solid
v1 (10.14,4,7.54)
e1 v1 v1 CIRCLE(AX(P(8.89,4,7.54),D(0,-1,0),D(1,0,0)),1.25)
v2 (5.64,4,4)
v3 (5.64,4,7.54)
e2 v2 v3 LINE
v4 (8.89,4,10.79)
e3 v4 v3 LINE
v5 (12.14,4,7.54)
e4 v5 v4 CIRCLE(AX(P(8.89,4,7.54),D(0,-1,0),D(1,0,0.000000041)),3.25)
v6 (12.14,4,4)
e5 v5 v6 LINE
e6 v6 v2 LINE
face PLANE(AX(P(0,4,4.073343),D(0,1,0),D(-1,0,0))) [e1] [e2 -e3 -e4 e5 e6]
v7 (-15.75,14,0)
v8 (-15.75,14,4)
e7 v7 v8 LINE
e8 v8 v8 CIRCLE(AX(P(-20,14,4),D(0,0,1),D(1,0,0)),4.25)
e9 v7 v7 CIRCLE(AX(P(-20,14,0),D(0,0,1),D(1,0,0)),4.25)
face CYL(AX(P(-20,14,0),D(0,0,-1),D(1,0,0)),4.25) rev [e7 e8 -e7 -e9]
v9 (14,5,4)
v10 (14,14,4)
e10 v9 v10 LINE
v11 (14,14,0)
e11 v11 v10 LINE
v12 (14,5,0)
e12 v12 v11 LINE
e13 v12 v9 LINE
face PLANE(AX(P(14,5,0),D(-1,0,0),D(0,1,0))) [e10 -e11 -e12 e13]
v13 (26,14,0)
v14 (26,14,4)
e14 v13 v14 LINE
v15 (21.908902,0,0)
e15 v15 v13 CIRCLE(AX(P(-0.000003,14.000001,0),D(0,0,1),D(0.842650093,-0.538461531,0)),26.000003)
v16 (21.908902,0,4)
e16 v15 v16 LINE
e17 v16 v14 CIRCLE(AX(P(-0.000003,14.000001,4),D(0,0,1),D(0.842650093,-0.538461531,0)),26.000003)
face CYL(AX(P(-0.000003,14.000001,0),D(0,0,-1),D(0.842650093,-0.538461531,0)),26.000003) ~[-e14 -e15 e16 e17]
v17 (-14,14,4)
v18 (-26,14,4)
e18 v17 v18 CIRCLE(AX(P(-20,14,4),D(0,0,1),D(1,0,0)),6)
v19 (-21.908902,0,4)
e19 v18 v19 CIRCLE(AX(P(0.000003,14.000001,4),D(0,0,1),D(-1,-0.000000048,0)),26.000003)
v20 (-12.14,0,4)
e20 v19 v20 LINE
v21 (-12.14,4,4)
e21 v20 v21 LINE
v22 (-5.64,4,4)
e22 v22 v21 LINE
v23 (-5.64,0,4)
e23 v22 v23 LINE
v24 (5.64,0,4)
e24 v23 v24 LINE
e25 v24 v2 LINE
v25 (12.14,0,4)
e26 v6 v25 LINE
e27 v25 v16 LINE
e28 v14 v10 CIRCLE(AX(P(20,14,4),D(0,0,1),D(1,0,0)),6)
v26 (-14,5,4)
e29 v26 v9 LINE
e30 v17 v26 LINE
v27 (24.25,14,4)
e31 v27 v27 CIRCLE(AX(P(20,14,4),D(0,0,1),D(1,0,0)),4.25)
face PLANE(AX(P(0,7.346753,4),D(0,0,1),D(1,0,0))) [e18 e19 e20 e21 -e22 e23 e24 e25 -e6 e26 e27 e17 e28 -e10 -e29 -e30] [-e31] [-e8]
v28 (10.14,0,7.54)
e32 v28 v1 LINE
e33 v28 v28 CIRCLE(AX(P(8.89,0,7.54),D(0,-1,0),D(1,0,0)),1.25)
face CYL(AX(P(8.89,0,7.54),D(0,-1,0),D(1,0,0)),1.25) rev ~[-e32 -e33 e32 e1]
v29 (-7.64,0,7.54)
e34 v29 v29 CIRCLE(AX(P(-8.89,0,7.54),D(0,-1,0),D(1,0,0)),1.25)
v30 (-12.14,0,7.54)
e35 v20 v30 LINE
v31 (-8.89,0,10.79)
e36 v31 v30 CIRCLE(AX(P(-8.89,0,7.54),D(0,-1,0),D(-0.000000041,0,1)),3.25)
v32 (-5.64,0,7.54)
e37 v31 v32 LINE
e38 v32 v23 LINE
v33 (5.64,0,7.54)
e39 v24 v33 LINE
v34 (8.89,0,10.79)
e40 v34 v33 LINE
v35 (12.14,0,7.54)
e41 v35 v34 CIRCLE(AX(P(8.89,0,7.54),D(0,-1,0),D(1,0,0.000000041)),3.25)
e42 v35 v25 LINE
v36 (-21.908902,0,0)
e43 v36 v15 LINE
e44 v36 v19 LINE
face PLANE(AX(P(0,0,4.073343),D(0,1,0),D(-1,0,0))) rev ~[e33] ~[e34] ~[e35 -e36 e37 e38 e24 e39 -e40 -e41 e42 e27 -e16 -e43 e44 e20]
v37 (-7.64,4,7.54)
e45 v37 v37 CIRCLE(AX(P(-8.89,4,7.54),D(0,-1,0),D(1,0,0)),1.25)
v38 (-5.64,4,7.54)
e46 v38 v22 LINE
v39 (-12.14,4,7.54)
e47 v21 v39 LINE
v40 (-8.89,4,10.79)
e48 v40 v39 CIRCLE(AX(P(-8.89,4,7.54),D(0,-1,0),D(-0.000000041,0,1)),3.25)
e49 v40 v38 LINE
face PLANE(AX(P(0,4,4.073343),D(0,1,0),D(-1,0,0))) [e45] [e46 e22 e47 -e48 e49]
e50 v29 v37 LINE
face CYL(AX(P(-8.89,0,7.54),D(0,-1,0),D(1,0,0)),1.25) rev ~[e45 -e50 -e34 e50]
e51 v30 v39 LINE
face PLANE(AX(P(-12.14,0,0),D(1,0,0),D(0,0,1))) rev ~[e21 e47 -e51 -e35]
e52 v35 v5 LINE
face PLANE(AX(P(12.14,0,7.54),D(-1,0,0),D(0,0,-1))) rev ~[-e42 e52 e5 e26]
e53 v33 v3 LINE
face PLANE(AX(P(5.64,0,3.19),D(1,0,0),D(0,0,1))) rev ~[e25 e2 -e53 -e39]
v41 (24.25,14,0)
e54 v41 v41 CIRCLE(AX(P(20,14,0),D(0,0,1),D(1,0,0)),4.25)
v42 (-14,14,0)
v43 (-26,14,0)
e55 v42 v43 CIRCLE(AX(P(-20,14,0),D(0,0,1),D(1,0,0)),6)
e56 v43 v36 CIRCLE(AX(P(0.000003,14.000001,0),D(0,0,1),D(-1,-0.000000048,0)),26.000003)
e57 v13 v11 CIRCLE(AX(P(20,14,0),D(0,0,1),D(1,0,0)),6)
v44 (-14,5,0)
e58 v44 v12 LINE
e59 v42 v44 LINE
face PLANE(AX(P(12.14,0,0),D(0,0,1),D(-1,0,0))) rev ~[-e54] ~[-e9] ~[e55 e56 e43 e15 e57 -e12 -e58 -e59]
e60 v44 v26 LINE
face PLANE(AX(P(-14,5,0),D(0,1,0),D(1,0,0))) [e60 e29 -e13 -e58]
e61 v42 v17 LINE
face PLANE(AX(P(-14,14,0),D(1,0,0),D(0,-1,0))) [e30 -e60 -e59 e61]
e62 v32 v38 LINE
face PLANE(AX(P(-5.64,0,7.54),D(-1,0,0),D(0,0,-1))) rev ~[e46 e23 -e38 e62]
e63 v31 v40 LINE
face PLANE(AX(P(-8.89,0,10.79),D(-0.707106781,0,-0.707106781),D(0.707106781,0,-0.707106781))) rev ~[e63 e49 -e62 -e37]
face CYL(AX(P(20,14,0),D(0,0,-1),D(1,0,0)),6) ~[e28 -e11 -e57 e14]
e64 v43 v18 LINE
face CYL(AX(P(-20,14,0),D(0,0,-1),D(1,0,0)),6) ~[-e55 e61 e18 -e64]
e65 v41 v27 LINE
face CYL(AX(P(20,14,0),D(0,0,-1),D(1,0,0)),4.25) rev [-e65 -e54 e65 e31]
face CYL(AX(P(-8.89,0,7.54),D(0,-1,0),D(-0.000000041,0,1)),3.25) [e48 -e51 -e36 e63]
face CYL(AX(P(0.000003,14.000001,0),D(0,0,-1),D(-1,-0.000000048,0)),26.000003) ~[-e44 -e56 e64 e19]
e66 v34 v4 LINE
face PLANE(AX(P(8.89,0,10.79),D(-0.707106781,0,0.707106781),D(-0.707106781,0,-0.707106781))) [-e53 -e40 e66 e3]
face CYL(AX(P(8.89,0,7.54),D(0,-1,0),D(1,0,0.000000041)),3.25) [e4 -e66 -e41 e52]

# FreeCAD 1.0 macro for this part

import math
import FreeCAD as App
import Part
import Sketcher

doc = App.newDocument("Part")
body = doc.addObject("PartDesign::Body", "Body")

# Sketch on XY plane
sketch1 = body.newObject("Sketcher::SketchObject", "Sketch")
sketch1.AttachmentSupport = (doc.getObject("XY_Plane"), [""])
sketch1.MapMode = "FlatFace"
sketch1.addGeometry(Part.ArcOfCircle(Part.Circle(App.Vector(-20, 14, 0), App.Vector(0, 0, 1), 6), math.radians(0), math.radians(180)), False)
sketch1.addGeometry(Part.ArcOfCircle(Part.Circle(App.Vector(0.000003, 14.000001, 0), App.Vector(0, 0, 1), 26.000003), math.radians(-179.999997), math.radians(-147.42103)), False)
sketch1.addGeometry(Part.LineSegment(App.Vector(-21.908902, 0, 0), App.Vector(21.908902, 0, 0)), False)
sketch1.addGeometry(Part.ArcOfCircle(Part.Circle(App.Vector(-0.000003, 14.000001, 0), App.Vector(0, 0, 1), 26.000003), math.radians(-32.57897), math.radians(-0.000003)), False)
sketch1.addGeometry(Part.ArcOfCircle(Part.Circle(App.Vector(20, 14, 0), App.Vector(0, 0, 1), 6), math.radians(0), math.radians(180)), False)
sketch1.addGeometry(Part.LineSegment(App.Vector(14, 14, 0), App.Vector(14, 5, 0)), False)
sketch1.addGeometry(Part.LineSegment(App.Vector(14, 5, 0), App.Vector(-14, 5, 0)), False)
sketch1.addGeometry(Part.LineSegment(App.Vector(-14, 5, 0), App.Vector(-14, 14, 0)), False)
sketch1.addGeometry(Part.Circle(App.Vector(-20, 14, 0), App.Vector(0, 0, 1), 4.25), False)
sketch1.addGeometry(Part.Circle(App.Vector(20, 14, 0), App.Vector(0, 0, 1), 4.25), False)
sketch1.addConstraint(Sketcher.Constraint("Tangent", 0, 2, 1, 1))
sketch1.addConstraint(Sketcher.Constraint("Coincident", 1, 2, 2, 1))
sketch1.addConstraint(Sketcher.Constraint("Coincident", 2, 2, 3, 1))
sketch1.addConstraint(Sketcher.Constraint("Tangent", 3, 2, 4, 1))
sketch1.addConstraint(Sketcher.Constraint("Tangent", 4, 2, 5, 1))
sketch1.addConstraint(Sketcher.Constraint("Coincident", 5, 2, 6, 1))
sketch1.addConstraint(Sketcher.Constraint("Coincident", 6, 2, 7, 1))
sketch1.addConstraint(Sketcher.Constraint("Tangent", 7, 2, 0, 1))
sketch1.addConstraint(Sketcher.Constraint("Horizontal", 2))
sketch1.addConstraint(Sketcher.Constraint("Vertical", 5))
sketch1.addConstraint(Sketcher.Constraint("Horizontal", 6))
sketch1.addConstraint(Sketcher.Constraint("Vertical", 7))
sketch1.addConstraint(Sketcher.Constraint("Coincident", 3, 3, 1, 3))
sketch1.addConstraint(Sketcher.Constraint("Coincident", 8, 3, 0, 3))
sketch1.addConstraint(Sketcher.Constraint("Coincident", 9, 3, 4, 3))
sketch1.addConstraint(Sketcher.Constraint("Equal", 1, 3))
sketch1.addConstraint(Sketcher.Constraint("Equal", 0, 4))
sketch1.addConstraint(Sketcher.Constraint("Equal", 8, 9))
sketch1.addConstraint(Sketcher.Constraint("Symmetric", 1, 2, 2, 2, -1, 1))
sketch1.addConstraint(Sketcher.Constraint("Horizontal", 0, 3, 1, 3))
sketch1.addConstraint(Sketcher.Constraint("Horizontal", 3, 3, 4, 3))
sketch1.addConstraint(Sketcher.Constraint("Radius", 0, 6.0))
sketch1.addConstraint(Sketcher.Constraint("Diameter", 8, 8.5))
sketch1.addConstraint(Sketcher.Constraint("DistanceX", 6, 2, 6, 1, 28.0))
sketch1.addConstraint(Sketcher.Constraint("DistanceY", 5, 2, 5, 1, 9.0))
sketch1.addConstraint(Sketcher.Constraint("DistanceY", -1, 1, 0, 3, 14.0))
pad1 = body.newObject("PartDesign::Pad", "Pad")
pad1.Profile = sketch1
pad1.Length = 4

# Sketch on XZ plane
sketch2 = body.newObject("Sketcher::SketchObject", "Sketch001")
sketch2.AttachmentSupport = (doc.getObject("XZ_Plane"), [""])
sketch2.MapMode = "FlatFace"
sketch2.addGeometry(Part.LineSegment(App.Vector(-5.64, 3.19, 0), App.Vector(-5.64, 7.54, 0)), False)
sketch2.addGeometry(Part.LineSegment(App.Vector(-5.64, 7.54, 0), App.Vector(-8.89, 10.79, 0)), False)
sketch2.addGeometry(Part.ArcOfCircle(Part.Circle(App.Vector(-8.89, 7.54, 0), App.Vector(0, 0, 1), 3.25), math.radians(90.000002), math.radians(179.999998)), False)
sketch2.addGeometry(Part.LineSegment(App.Vector(-12.14, 7.54, 0), App.Vector(-12.14, 0, 0)), False)
sketch2.addGeometry(Part.LineSegment(App.Vector(-12.14, 0, 0), App.Vector(12.14, 0, 0)), False)
sketch2.addGeometry(Part.LineSegment(App.Vector(12.14, 0, 0), App.Vector(12.14, 7.54, 0)), False)
sketch2.addGeometry(Part.ArcOfCircle(Part.Circle(App.Vector(8.89, 7.54, 0), App.Vector(0, 0, 1), 3.25), math.radians(0.000002), math.radians(89.999998)), False)
sketch2.addGeometry(Part.LineSegment(App.Vector(8.89, 10.79, 0), App.Vector(5.64, 7.54, 0)), False)
sketch2.addGeometry(Part.LineSegment(App.Vector(5.64, 7.54, 0), App.Vector(5.64, 3.19, 0)), False)
sketch2.addGeometry(Part.LineSegment(App.Vector(5.64, 3.19, 0), App.Vector(-5.64, 3.19, 0)), False)
sketch2.addGeometry(Part.Circle(App.Vector(8.89, 7.54, 0), App.Vector(0, 0, 1), 1.25), False)
sketch2.addGeometry(Part.Circle(App.Vector(-8.89, 7.54, 0), App.Vector(0, 0, 1), 1.25), False)
sketch2.addConstraint(Sketcher.Constraint("Coincident", 0, 2, 1, 1))
sketch2.addConstraint(Sketcher.Constraint("Coincident", 1, 2, 2, 1))
sketch2.addConstraint(Sketcher.Constraint("Tangent", 2, 2, 3, 1))
sketch2.addConstraint(Sketcher.Constraint("Coincident", 3, 2, 4, 1))
sketch2.addConstraint(Sketcher.Constraint("Coincident", 4, 2, 5, 1))
sketch2.addConstraint(Sketcher.Constraint("Tangent", 5, 2, 6, 1))
sketch2.addConstraint(Sketcher.Constraint("Coincident", 6, 2, 7, 1))
sketch2.addConstraint(Sketcher.Constraint("Coincident", 7, 2, 8, 1))
sketch2.addConstraint(Sketcher.Constraint("Coincident", 8, 2, 9, 1))
sketch2.addConstraint(Sketcher.Constraint("Coincident", 9, 2, 0, 1))
sketch2.addConstraint(Sketcher.Constraint("Vertical", 0))
sketch2.addConstraint(Sketcher.Constraint("Vertical", 3))
sketch2.addConstraint(Sketcher.Constraint("Horizontal", 4))
sketch2.addConstraint(Sketcher.Constraint("Vertical", 5))
sketch2.addConstraint(Sketcher.Constraint("Vertical", 8))
sketch2.addConstraint(Sketcher.Constraint("Horizontal", 9))
sketch2.addConstraint(Sketcher.Constraint("Coincident", 10, 3, 6, 3))
sketch2.addConstraint(Sketcher.Constraint("Coincident", 11, 3, 2, 3))
sketch2.addConstraint(Sketcher.Constraint("Equal", 2, 6))
sketch2.addConstraint(Sketcher.Constraint("Equal", 10, 11))
sketch2.addConstraint(Sketcher.Constraint("Symmetric", 3, 2, 4, 2, -1, 1))
sketch2.addConstraint(Sketcher.Constraint("Symmetric", 1, 2, 6, 2, -2))
sketch2.addConstraint(Sketcher.Constraint("Symmetric", 0, 2, 7, 2, -2))
sketch2.addConstraint(Sketcher.Constraint("Perpendicular", 1, 7))
sketch2.addConstraint(Sketcher.Constraint("Horizontal", 11, 3, 0, 2))
sketch2.addConstraint(Sketcher.Constraint("Vertical", 11, 3, 1, 2))
sketch2.addConstraint(Sketcher.Constraint("Diameter", 10, 2.5))
sketch2.addConstraint(Sketcher.Constraint("Radius", 2, 3.25))
sketch2.addConstraint(Sketcher.Constraint("DistanceX", 4, 1, 4, 2, 24.28))
sketch2.addConstraint(Sketcher.Constraint("DistanceY", 0, 1, 0, 2, 4.35))
sketch2.addConstraint(Sketcher.Constraint("DistanceY", 3, 2, 3, 1, 7.54))
pad2 = body.newObject("PartDesign::Pad", "Pad001")
pad2.Profile = sketch2
pad2.Length = 4
pad2.Reversed = True

doc.recompute()
